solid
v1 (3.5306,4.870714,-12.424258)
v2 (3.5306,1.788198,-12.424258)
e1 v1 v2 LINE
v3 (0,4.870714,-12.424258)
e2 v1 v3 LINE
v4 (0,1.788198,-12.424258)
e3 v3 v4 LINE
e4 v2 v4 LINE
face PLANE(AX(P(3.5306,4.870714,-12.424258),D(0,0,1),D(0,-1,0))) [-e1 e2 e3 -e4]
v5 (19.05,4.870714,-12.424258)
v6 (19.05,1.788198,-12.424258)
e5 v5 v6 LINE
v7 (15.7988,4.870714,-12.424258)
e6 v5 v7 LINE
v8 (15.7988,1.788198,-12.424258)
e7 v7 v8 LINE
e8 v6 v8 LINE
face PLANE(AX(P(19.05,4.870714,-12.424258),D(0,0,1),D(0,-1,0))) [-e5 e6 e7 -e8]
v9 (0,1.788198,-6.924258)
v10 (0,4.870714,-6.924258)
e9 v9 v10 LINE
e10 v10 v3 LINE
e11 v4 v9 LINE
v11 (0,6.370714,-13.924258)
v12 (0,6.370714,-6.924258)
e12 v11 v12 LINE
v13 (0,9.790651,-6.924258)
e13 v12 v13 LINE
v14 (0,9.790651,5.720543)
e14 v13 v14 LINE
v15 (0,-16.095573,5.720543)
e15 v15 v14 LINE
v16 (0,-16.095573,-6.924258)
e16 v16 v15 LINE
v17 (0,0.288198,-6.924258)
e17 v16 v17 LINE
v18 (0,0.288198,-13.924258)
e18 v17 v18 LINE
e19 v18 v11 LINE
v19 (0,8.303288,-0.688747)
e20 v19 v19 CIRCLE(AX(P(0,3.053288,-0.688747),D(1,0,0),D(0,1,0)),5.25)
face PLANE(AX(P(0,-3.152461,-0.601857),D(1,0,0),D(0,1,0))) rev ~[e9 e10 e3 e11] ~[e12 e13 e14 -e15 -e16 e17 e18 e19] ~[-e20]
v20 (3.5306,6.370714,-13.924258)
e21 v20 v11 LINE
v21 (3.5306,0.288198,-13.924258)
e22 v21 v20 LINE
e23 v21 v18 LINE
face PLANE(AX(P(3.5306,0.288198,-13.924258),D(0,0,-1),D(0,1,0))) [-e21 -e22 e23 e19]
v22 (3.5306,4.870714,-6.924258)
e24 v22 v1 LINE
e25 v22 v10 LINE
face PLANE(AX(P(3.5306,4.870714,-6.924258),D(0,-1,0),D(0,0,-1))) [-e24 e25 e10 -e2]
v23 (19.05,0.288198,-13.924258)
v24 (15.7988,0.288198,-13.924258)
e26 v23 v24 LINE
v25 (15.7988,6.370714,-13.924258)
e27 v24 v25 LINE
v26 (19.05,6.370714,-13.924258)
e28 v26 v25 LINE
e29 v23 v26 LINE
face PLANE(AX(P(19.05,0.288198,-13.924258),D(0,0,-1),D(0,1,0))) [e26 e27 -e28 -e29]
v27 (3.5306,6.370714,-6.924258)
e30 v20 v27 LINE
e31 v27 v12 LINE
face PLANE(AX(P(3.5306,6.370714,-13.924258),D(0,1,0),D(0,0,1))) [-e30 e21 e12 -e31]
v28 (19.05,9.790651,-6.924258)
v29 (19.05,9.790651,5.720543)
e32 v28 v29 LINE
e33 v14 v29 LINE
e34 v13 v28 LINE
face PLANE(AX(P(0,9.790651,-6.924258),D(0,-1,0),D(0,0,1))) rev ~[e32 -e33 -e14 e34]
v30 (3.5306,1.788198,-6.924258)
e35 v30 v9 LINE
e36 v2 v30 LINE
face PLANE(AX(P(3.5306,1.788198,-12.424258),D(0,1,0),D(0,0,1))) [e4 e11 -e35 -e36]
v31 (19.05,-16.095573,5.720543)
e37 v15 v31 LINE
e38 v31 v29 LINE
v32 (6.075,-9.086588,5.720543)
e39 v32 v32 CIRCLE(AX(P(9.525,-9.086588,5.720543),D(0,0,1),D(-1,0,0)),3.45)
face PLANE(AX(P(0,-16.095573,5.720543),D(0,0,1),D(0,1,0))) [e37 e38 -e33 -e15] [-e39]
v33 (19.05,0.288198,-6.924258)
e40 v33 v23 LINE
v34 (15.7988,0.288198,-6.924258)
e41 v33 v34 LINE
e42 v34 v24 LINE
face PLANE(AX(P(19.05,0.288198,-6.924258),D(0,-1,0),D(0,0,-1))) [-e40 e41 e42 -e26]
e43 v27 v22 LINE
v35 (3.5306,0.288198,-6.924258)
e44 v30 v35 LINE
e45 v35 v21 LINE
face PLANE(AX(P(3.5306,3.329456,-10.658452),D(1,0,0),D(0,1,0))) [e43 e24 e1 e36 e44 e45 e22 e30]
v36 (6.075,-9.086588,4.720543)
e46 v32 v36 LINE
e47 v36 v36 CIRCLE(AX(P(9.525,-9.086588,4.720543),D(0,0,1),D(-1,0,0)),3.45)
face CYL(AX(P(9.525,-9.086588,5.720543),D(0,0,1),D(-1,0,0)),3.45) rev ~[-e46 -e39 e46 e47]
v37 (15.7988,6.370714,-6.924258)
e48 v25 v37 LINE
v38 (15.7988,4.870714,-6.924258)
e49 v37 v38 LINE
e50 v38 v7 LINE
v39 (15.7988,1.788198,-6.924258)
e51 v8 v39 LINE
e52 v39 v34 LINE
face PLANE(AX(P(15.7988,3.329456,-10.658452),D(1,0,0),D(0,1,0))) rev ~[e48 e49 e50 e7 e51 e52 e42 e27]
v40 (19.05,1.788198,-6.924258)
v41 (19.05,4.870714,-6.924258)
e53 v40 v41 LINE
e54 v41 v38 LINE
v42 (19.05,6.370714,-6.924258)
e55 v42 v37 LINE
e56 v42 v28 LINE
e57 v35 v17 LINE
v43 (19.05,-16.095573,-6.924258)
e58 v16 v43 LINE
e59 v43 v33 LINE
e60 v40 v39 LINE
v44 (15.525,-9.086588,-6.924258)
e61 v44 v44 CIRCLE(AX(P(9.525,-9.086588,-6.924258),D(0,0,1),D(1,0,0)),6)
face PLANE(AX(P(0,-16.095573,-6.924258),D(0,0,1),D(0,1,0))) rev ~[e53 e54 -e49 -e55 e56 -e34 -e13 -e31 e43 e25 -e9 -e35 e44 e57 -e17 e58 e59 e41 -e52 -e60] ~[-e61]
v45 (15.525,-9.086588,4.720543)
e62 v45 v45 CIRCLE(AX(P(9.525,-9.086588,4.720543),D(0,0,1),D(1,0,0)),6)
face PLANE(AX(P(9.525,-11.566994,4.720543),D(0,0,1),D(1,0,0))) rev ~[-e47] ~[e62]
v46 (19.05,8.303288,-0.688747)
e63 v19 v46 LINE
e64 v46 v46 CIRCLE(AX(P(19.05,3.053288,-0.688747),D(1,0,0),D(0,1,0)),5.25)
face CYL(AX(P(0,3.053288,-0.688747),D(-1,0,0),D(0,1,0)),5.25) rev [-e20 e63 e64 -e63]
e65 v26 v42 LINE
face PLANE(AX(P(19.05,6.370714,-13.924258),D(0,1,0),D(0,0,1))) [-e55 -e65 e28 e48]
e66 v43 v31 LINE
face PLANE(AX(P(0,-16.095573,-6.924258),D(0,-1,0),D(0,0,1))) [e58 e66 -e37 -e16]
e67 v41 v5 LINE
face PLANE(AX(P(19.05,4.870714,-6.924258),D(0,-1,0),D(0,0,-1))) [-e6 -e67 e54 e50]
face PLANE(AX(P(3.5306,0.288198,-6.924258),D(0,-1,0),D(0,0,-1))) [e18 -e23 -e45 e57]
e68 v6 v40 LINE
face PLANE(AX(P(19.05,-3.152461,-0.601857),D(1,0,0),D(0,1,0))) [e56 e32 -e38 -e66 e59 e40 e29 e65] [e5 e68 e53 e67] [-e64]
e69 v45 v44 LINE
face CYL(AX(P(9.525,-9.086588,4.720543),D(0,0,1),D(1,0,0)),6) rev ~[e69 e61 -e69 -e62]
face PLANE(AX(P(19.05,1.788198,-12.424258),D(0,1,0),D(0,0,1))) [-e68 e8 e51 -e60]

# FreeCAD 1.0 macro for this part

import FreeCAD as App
import Part
import Sketcher
Q = App.Units.Quantity


def add_polygon(sketch, points):
    """Adds a closed chain of lines whose ends are joined by coincident constraints."""
    first, n = sketch.GeometryCount, len(points)
    for a, b in zip(points, points[1:] + points[:1]):
        sketch.addGeometry(Part.LineSegment(App.Vector(*a, 0), App.Vector(*b, 0)), False)
    for i in range(n):
        sketch.addConstraint(Sketcher.Constraint("Coincident", first + i, 2, first + (i + 1) % n, 1))

doc = App.newDocument("Part")
body = doc.addObject("PartDesign::Body", "Body")

# Sketch on YZ plane
sketch1 = body.newObject("Sketcher::SketchObject", "Sketch")
sketch1.AttachmentSupport = (doc.getObject("YZ_Plane"), [""])
sketch1.MapMode = "FlatFace"
add_polygon(sketch1, [(-16, 6), (-16, -7), (10, -7), (10, 6)])  # lines 0-3
sketch1.addGeometry(Part.Circle(App.Vector(3, -1, 0), App.Vector(0, 0, 1), 5), False)  # 4
sketch1.addConstraint([
    Sketcher.Constraint("Vertical", 0),
    Sketcher.Constraint("Horizontal", 1),
    Sketcher.Constraint("Vertical", 2),
    Sketcher.Constraint("Horizontal", 3),
    Sketcher.Constraint("Diameter", 4, Q("10.5 mm")),
    Sketcher.Constraint("DistanceY", 0, 2, 0, 1, Q("12.6448 mm")),
    Sketcher.Constraint("DistanceX", 1, 1, 1, 2, Q("25.886225 mm")),
    Sketcher.Constraint("DistanceX", -1, 1, 1, 2, Q("9.790651 mm")),
    Sketcher.Constraint("DistanceX", 0, 2, 4, 3, Q("19.148861 mm")),
    Sketcher.Constraint("DistanceY", 0, 2, 4, 3, Q("6.235511 mm")),
    Sketcher.Constraint("DistanceY", 4, 3, -1, 1, Q("0.688747 mm")),
])
pad1 = body.newObject("PartDesign::Pad", "Pad")
pad1.Profile = sketch1
pad1.Length = 19.05

# Sketch on XY plane
sketch2 = body.newObject("Sketcher::SketchObject", "Sketch001")
sketch2.AttachmentSupport = (doc.getObject("XY_Plane"), [""])
sketch2.MapMode = "FlatFace"
sketch2.AttachmentOffset = App.Placement(App.Vector(0, 0, 5.720543), App.Rotation())
sketch2.addGeometry(Part.Circle(App.Vector(9.5, -9.1, 0), App.Vector(0, 0, 1), 3.5), False)
sketch2.addConstraint([
    Sketcher.Constraint("Diameter", 0, Q("6.9 mm")),
    Sketcher.Constraint("DistanceX", -1, 1, 0, 3, Q("9.525 mm")),
    Sketcher.Constraint("DistanceY", 0, 3, -1, 1, Q("9.086588 mm")),
])
pocket1 = body.newObject("PartDesign::Pocket", "Pocket")
pocket1.Profile = sketch2
pocket1.Length = 1

# Sketch on XY plane
sketch3 = body.newObject("Sketcher::SketchObject", "Sketch002")
sketch3.AttachmentSupport = (doc.getObject("XY_Plane"), [""])
sketch3.MapMode = "FlatFace"
sketch3.AttachmentOffset = App.Placement(App.Vector(0, 0, 4.720543), App.Rotation())
sketch3.addGeometry(Part.Circle(App.Vector(10, -9, 0), App.Vector(0, 0, 1), 6), False)
sketch3.addConstraint([
    Sketcher.Constraint("Diameter", 0, Q("12 mm")),
    Sketcher.Constraint("DistanceX", -1, 1, 0, 3, Q("9.525 mm")),
    Sketcher.Constraint("DistanceY", 0, 3, -1, 1, Q("9.086588 mm")),
])
pocket2 = body.newObject("PartDesign::Pocket", "Pocket001")
pocket2.Profile = sketch3
pocket2.Length = 24.4

# Sketch on YZ plane
sketch4 = body.newObject("Sketcher::SketchObject", "Sketch003")
sketch4.AttachmentSupport = (doc.getObject("YZ_Plane"), [""])
sketch4.MapMode = "FlatFace"
sketch4.AttachmentOffset = App.Placement(App.Vector(0, 0, 19.05), App.Rotation())
add_polygon(sketch4, [(6.4, -13.9), (6.4, -6.9), (4.9, -6.9), (4.9, -12.4), (1.8, -12.4), (1.8, -6.9), (0.3, -6.9), (0.3, -13.9)])  # lines 0-7
sketch4.addConstraint([
    Sketcher.Constraint("Vertical", 0),
    Sketcher.Constraint("Horizontal", 1),
    Sketcher.Constraint("Vertical", 2),
    Sketcher.Constraint("Horizontal", 3),
    Sketcher.Constraint("Vertical", 4),
    Sketcher.Constraint("Horizontal", 5),
    Sketcher.Constraint("Vertical", 6),
    Sketcher.Constraint("Horizontal", 7),
    Sketcher.Constraint("Horizontal", 1, 2, 4, 2),
    Sketcher.Constraint("Equal", 1, 5),
    Sketcher.Constraint("DistanceY", 0, 1, 0, 2, Q("7 mm")),
    Sketcher.Constraint("DistanceX", 1, 2, 1, 1, Q("1.5 mm")),
    Sketcher.Constraint("DistanceY", 2, 2, 2, 1, Q("5.5 mm")),
    Sketcher.Constraint("DistanceX", -1, 1, 3, 2, Q("1.788198 mm")),
    Sketcher.Constraint("DistanceX", 3, 2, 3, 1, Q("3.082516 mm")),
    Sketcher.Constraint("DistanceY", 0, 2, -1, 1, Q("6.924258 mm")),
])
pad2 = body.newObject("PartDesign::Pad", "Pad001")
pad2.Profile = sketch4
pad2.Length = 3.2512
pad2.Reversed = True

# Sketch on YZ plane
sketch5 = body.newObject("Sketcher::SketchObject", "Sketch004")
sketch5.AttachmentSupport = (doc.getObject("YZ_Plane"), [""])
sketch5.MapMode = "FlatFace"
sketch5.AttachmentOffset = App.Placement(App.Vector(0, 0, 3.5306), App.Rotation())
add_polygon(sketch5, [(6.4, -13.9), (6.4, -6.9), (4.9, -6.9), (4.9, -12.4), (1.8, -12.4), (1.8, -6.9), (0.3, -6.9), (0.3, -13.9)])  # lines 0-7
sketch5.addConstraint([
    Sketcher.Constraint("Vertical", 0),
    Sketcher.Constraint("Horizontal", 1),
    Sketcher.Constraint("Vertical", 2),
    Sketcher.Constraint("Horizontal", 3),
    Sketcher.Constraint("Vertical", 4),
    Sketcher.Constraint("Horizontal", 5),
    Sketcher.Constraint("Vertical", 6),
    Sketcher.Constraint("Horizontal", 7),
    Sketcher.Constraint("Horizontal", 1, 2, 4, 2),
    Sketcher.Constraint("Equal", 1, 5),
    Sketcher.Constraint("DistanceY", 0, 1, 0, 2, Q("7 mm")),
    Sketcher.Constraint("DistanceX", 1, 2, 1, 1, Q("1.5 mm")),
    Sketcher.Constraint("DistanceY", 2, 2, 2, 1, Q("5.5 mm")),
    Sketcher.Constraint("DistanceX", -1, 1, 3, 2, Q("1.788198 mm")),
    Sketcher.Constraint("DistanceX", 3, 2, 3, 1, Q("3.082516 mm")),
    Sketcher.Constraint("DistanceY", 0, 2, -1, 1, Q("6.924258 mm")),
])
pad3 = body.newObject("PartDesign::Pad", "Pad002")
pad3.Profile = sketch5
pad3.Length = 3.5306
pad3.Reversed = True

doc.recompute()
